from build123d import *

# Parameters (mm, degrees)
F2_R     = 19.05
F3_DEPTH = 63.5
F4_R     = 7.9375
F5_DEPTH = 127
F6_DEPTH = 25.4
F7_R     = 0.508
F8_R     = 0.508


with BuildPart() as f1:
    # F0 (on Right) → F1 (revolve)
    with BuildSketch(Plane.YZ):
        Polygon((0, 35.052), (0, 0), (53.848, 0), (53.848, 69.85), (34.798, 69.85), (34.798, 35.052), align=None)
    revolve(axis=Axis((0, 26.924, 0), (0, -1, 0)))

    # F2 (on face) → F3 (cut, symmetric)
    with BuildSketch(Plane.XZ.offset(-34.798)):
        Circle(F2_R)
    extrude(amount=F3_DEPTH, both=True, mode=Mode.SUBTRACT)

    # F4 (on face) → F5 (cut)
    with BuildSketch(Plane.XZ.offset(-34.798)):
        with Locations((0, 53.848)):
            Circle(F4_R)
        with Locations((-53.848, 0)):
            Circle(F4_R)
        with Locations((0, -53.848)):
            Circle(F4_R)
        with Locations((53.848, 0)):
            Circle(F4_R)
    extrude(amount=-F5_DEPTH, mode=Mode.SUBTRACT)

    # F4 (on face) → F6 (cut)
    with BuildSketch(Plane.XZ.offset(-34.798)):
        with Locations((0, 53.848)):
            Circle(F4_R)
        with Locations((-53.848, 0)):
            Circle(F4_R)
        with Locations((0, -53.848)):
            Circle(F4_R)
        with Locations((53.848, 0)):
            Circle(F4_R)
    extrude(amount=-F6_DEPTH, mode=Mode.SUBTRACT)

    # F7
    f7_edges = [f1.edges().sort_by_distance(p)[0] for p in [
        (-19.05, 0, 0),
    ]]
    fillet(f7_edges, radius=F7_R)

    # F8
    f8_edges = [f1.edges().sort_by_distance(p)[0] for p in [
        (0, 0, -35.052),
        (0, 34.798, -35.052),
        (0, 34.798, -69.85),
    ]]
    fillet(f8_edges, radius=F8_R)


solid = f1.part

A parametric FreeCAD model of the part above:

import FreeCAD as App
import Part
import Sketcher
from FreeCAD import Vector
Q = App.Units.Quantity


def edges_at(feature, points):
    """Names of the edges that pass closest to the given points."""
    edges = feature.Shape.Edges
    near = lambda p: min(range(len(edges)), key=lambda i: edges[i].distToShape(Part.Vertex(*p))[0])
    return sorted({f"Edge{near(p) + 1}" for p in points})


def add_polygon(sketch, points):
    """Adds a closed chain of lines whose ends are joined by coincident constraints."""
    first, n = sketch.GeometryCount, len(points)
    for a, b in zip(points, points[1:] + points[:1]):
        sketch.addGeometry(Part.LineSegment(App.Vector(*a, 0), App.Vector(*b, 0)), False)
    for i in range(n):
        sketch.addConstraint(Sketcher.Constraint("Coincident", first + i, 2, first + (i + 1) % n, 1))

doc = App.newDocument("Part")
body = doc.addObject("PartDesign::Body", "Body")

sketch1 = doc.addObject("Sketcher::SketchObject", "Sketch")
body.addObject(sketch1)
sketch1.AttachmentSupport = (doc.YZ_Plane, [""])
sketch1.MapMode = "FlatFace"
add_polygon(sketch1, [(0, 35), (0, 0), (54, 0), (54, 70), (35, 70), (35, 35)])
sketch1.addConstraint(Sketcher.Constraint("Vertical", 0))
sketch1.addConstraint(Sketcher.Constraint("Horizontal", 1))
sketch1.addConstraint(Sketcher.Constraint("Vertical", 2))
sketch1.addConstraint(Sketcher.Constraint("Horizontal", 3))
sketch1.addConstraint(Sketcher.Constraint("Vertical", 4))
sketch1.addConstraint(Sketcher.Constraint("Horizontal", 5))
sketch1.addConstraint(Sketcher.Constraint("Coincident", 0, 2, -1, 1))
sketch1.addConstraint(Sketcher.Constraint("Equal", 5, 4))
sketch1.addConstraint(Sketcher.Constraint("DistanceX", 1, 1, 1, 2, Q("2.12 in")))
sketch1.addConstraint(Sketcher.Constraint("DistanceX", 3, 2, 3, 1, Q("0.75 in")))
sketch1.addConstraint(Sketcher.Constraint("DistanceY", 0, 2, 0, 1, Q("1.38 in")))
revolution = doc.addObject("PartDesign::Revolution", "Revolution")
body.addObject(revolution)
revolution.Profile = sketch1
revolution.ReferenceAxis = (sketch1, ["H_Axis"])
revolution.Angle = 360

sketch2 = doc.addObject("Sketcher::SketchObject", "Sketch001")
body.addObject(sketch2)
sketch2.AttachmentSupport = (doc.XZ_Plane, [""])
sketch2.MapMode = "FlatFace"
sketch2.AttachmentOffset = App.Placement(Vector(0, 0, -1.37 * 25.4), App.Rotation())
sketch2.addGeometry(Part.Circle(Vector(0, 0, 0), Vector(0, 0, 1), 19), False)
sketch2.addConstraint(Sketcher.Constraint("Coincident", 0, 3, -1, 1))
sketch2.addConstraint(Sketcher.Constraint("Diameter", 0, Q("1.5 in")))
pocket1 = doc.addObject("PartDesign::Pocket", "Pocket")
body.addObject(pocket1)
pocket1.Profile = sketch2
pocket1.Length = Q("5 in")
pocket1.Midplane = True

sketch3 = doc.addObject("Sketcher::SketchObject", "Sketch002")
body.addObject(sketch3)
sketch3.AttachmentSupport = (doc.XZ_Plane, [""])
sketch3.MapMode = "FlatFace"
sketch3.AttachmentOffset = App.Placement(Vector(0, 0, -1.37 * 25.4), App.Rotation())
sketch3.addGeometry(Part.Circle(Vector(0, 54, 0), Vector(0, 0, 1), 8), False)
sketch3.addGeometry(Part.Circle(Vector(-54, 0, 0), Vector(0, 0, 1), 8), False)
sketch3.addGeometry(Part.Circle(Vector(0, -54, 0), Vector(0, 0, 1), 8), False)
sketch3.addGeometry(Part.Circle(Vector(54, 0, 0), Vector(0, 0, 1), 8), False)
sketch3.addConstraint(Sketcher.Constraint("Equal", 0, 1))
sketch3.addConstraint(Sketcher.Constraint("Equal", 1, 2))
sketch3.addConstraint(Sketcher.Constraint("Equal", 2, 3))
sketch3.addConstraint(Sketcher.Constraint("Symmetric", 0, 3, 2, 3, -1, 1))
sketch3.addConstraint(Sketcher.Constraint("Symmetric", 1, 3, 3, 3, -1, 1))
sketch3.addConstraint(Sketcher.Constraint("PointOnObject", 0, 3, -2))
sketch3.addConstraint(Sketcher.Constraint("PointOnObject", 1, 3, -1))
sketch3.addConstraint(Sketcher.Constraint("Diameter", 0, Q("0.625 in")))
sketch3.addConstraint(Sketcher.Constraint("DistanceY", -1, 1, 0, 3, Q("2.12 in")))
sketch3.addConstraint(Sketcher.Constraint("DistanceX", 1, 3, -1, 1, Q("2.12 in")))
pocket2 = doc.addObject("PartDesign::Pocket", "Pocket001")
body.addObject(pocket2)
pocket2.Profile = sketch3
pocket2.Length = Q("5 in")

sketch4 = doc.addObject("Sketcher::SketchObject", "Sketch003")
body.addObject(sketch4)
sketch4.AttachmentSupport = (doc.XZ_Plane, [""])
sketch4.MapMode = "FlatFace"
sketch4.AttachmentOffset = App.Placement(Vector(0, 0, -1.37 * 25.4), App.Rotation())
sketch4.addGeometry(Part.Circle(Vector(0, 54, 0), Vector(0, 0, 1), 8), False)
sketch4.addGeometry(Part.Circle(Vector(-54, 0, 0), Vector(0, 0, 1), 8), False)
sketch4.addGeometry(Part.Circle(Vector(0, -54, 0), Vector(0, 0, 1), 8), False)
sketch4.addGeometry(Part.Circle(Vector(54, 0, 0), Vector(0, 0, 1), 8), False)
sketch4.addConstraint(Sketcher.Constraint("Equal", 0, 1))
sketch4.addConstraint(Sketcher.Constraint("Equal", 1, 2))
sketch4.addConstraint(Sketcher.Constraint("Equal", 2, 3))
sketch4.addConstraint(Sketcher.Constraint("Symmetric", 0, 3, 2, 3, -1, 1))
sketch4.addConstraint(Sketcher.Constraint("Symmetric", 1, 3, 3, 3, -1, 1))
sketch4.addConstraint(Sketcher.Constraint("PointOnObject", 0, 3, -2))
sketch4.addConstraint(Sketcher.Constraint("PointOnObject", 1, 3, -1))
sketch4.addConstraint(Sketcher.Constraint("Diameter", 0, Q("0.625 in")))
sketch4.addConstraint(Sketcher.Constraint("DistanceY", -1, 1, 0, 3, Q("2.12 in")))
sketch4.addConstraint(Sketcher.Constraint("DistanceX", 1, 3, -1, 1, Q("2.12 in")))
pocket3 = doc.addObject("PartDesign::Pocket", "Pocket002")
body.addObject(pocket3)
pocket3.Profile = sketch4
pocket3.Length = Q("1 in")
doc.recompute()

fillet = doc.addObject("PartDesign::Fillet", "Fillet")
body.addObject(fillet)
fillet.Base = (pocket3, edges_at(pocket3, [(-19.05, 0, 0)]))
fillet.Radius = Q("0.02 in")
doc.recompute()

fillet2 = doc.addObject("PartDesign::Fillet", "Fillet001")
body.addObject(fillet2)
fillet2.Base = (fillet, edges_at(fillet, [(0, 0, -35.052), (0, 34.798, -35.052), (0, 34.798, -69.85)]))
fillet2.Radius = Q("0.02 in")

doc.recompute()
